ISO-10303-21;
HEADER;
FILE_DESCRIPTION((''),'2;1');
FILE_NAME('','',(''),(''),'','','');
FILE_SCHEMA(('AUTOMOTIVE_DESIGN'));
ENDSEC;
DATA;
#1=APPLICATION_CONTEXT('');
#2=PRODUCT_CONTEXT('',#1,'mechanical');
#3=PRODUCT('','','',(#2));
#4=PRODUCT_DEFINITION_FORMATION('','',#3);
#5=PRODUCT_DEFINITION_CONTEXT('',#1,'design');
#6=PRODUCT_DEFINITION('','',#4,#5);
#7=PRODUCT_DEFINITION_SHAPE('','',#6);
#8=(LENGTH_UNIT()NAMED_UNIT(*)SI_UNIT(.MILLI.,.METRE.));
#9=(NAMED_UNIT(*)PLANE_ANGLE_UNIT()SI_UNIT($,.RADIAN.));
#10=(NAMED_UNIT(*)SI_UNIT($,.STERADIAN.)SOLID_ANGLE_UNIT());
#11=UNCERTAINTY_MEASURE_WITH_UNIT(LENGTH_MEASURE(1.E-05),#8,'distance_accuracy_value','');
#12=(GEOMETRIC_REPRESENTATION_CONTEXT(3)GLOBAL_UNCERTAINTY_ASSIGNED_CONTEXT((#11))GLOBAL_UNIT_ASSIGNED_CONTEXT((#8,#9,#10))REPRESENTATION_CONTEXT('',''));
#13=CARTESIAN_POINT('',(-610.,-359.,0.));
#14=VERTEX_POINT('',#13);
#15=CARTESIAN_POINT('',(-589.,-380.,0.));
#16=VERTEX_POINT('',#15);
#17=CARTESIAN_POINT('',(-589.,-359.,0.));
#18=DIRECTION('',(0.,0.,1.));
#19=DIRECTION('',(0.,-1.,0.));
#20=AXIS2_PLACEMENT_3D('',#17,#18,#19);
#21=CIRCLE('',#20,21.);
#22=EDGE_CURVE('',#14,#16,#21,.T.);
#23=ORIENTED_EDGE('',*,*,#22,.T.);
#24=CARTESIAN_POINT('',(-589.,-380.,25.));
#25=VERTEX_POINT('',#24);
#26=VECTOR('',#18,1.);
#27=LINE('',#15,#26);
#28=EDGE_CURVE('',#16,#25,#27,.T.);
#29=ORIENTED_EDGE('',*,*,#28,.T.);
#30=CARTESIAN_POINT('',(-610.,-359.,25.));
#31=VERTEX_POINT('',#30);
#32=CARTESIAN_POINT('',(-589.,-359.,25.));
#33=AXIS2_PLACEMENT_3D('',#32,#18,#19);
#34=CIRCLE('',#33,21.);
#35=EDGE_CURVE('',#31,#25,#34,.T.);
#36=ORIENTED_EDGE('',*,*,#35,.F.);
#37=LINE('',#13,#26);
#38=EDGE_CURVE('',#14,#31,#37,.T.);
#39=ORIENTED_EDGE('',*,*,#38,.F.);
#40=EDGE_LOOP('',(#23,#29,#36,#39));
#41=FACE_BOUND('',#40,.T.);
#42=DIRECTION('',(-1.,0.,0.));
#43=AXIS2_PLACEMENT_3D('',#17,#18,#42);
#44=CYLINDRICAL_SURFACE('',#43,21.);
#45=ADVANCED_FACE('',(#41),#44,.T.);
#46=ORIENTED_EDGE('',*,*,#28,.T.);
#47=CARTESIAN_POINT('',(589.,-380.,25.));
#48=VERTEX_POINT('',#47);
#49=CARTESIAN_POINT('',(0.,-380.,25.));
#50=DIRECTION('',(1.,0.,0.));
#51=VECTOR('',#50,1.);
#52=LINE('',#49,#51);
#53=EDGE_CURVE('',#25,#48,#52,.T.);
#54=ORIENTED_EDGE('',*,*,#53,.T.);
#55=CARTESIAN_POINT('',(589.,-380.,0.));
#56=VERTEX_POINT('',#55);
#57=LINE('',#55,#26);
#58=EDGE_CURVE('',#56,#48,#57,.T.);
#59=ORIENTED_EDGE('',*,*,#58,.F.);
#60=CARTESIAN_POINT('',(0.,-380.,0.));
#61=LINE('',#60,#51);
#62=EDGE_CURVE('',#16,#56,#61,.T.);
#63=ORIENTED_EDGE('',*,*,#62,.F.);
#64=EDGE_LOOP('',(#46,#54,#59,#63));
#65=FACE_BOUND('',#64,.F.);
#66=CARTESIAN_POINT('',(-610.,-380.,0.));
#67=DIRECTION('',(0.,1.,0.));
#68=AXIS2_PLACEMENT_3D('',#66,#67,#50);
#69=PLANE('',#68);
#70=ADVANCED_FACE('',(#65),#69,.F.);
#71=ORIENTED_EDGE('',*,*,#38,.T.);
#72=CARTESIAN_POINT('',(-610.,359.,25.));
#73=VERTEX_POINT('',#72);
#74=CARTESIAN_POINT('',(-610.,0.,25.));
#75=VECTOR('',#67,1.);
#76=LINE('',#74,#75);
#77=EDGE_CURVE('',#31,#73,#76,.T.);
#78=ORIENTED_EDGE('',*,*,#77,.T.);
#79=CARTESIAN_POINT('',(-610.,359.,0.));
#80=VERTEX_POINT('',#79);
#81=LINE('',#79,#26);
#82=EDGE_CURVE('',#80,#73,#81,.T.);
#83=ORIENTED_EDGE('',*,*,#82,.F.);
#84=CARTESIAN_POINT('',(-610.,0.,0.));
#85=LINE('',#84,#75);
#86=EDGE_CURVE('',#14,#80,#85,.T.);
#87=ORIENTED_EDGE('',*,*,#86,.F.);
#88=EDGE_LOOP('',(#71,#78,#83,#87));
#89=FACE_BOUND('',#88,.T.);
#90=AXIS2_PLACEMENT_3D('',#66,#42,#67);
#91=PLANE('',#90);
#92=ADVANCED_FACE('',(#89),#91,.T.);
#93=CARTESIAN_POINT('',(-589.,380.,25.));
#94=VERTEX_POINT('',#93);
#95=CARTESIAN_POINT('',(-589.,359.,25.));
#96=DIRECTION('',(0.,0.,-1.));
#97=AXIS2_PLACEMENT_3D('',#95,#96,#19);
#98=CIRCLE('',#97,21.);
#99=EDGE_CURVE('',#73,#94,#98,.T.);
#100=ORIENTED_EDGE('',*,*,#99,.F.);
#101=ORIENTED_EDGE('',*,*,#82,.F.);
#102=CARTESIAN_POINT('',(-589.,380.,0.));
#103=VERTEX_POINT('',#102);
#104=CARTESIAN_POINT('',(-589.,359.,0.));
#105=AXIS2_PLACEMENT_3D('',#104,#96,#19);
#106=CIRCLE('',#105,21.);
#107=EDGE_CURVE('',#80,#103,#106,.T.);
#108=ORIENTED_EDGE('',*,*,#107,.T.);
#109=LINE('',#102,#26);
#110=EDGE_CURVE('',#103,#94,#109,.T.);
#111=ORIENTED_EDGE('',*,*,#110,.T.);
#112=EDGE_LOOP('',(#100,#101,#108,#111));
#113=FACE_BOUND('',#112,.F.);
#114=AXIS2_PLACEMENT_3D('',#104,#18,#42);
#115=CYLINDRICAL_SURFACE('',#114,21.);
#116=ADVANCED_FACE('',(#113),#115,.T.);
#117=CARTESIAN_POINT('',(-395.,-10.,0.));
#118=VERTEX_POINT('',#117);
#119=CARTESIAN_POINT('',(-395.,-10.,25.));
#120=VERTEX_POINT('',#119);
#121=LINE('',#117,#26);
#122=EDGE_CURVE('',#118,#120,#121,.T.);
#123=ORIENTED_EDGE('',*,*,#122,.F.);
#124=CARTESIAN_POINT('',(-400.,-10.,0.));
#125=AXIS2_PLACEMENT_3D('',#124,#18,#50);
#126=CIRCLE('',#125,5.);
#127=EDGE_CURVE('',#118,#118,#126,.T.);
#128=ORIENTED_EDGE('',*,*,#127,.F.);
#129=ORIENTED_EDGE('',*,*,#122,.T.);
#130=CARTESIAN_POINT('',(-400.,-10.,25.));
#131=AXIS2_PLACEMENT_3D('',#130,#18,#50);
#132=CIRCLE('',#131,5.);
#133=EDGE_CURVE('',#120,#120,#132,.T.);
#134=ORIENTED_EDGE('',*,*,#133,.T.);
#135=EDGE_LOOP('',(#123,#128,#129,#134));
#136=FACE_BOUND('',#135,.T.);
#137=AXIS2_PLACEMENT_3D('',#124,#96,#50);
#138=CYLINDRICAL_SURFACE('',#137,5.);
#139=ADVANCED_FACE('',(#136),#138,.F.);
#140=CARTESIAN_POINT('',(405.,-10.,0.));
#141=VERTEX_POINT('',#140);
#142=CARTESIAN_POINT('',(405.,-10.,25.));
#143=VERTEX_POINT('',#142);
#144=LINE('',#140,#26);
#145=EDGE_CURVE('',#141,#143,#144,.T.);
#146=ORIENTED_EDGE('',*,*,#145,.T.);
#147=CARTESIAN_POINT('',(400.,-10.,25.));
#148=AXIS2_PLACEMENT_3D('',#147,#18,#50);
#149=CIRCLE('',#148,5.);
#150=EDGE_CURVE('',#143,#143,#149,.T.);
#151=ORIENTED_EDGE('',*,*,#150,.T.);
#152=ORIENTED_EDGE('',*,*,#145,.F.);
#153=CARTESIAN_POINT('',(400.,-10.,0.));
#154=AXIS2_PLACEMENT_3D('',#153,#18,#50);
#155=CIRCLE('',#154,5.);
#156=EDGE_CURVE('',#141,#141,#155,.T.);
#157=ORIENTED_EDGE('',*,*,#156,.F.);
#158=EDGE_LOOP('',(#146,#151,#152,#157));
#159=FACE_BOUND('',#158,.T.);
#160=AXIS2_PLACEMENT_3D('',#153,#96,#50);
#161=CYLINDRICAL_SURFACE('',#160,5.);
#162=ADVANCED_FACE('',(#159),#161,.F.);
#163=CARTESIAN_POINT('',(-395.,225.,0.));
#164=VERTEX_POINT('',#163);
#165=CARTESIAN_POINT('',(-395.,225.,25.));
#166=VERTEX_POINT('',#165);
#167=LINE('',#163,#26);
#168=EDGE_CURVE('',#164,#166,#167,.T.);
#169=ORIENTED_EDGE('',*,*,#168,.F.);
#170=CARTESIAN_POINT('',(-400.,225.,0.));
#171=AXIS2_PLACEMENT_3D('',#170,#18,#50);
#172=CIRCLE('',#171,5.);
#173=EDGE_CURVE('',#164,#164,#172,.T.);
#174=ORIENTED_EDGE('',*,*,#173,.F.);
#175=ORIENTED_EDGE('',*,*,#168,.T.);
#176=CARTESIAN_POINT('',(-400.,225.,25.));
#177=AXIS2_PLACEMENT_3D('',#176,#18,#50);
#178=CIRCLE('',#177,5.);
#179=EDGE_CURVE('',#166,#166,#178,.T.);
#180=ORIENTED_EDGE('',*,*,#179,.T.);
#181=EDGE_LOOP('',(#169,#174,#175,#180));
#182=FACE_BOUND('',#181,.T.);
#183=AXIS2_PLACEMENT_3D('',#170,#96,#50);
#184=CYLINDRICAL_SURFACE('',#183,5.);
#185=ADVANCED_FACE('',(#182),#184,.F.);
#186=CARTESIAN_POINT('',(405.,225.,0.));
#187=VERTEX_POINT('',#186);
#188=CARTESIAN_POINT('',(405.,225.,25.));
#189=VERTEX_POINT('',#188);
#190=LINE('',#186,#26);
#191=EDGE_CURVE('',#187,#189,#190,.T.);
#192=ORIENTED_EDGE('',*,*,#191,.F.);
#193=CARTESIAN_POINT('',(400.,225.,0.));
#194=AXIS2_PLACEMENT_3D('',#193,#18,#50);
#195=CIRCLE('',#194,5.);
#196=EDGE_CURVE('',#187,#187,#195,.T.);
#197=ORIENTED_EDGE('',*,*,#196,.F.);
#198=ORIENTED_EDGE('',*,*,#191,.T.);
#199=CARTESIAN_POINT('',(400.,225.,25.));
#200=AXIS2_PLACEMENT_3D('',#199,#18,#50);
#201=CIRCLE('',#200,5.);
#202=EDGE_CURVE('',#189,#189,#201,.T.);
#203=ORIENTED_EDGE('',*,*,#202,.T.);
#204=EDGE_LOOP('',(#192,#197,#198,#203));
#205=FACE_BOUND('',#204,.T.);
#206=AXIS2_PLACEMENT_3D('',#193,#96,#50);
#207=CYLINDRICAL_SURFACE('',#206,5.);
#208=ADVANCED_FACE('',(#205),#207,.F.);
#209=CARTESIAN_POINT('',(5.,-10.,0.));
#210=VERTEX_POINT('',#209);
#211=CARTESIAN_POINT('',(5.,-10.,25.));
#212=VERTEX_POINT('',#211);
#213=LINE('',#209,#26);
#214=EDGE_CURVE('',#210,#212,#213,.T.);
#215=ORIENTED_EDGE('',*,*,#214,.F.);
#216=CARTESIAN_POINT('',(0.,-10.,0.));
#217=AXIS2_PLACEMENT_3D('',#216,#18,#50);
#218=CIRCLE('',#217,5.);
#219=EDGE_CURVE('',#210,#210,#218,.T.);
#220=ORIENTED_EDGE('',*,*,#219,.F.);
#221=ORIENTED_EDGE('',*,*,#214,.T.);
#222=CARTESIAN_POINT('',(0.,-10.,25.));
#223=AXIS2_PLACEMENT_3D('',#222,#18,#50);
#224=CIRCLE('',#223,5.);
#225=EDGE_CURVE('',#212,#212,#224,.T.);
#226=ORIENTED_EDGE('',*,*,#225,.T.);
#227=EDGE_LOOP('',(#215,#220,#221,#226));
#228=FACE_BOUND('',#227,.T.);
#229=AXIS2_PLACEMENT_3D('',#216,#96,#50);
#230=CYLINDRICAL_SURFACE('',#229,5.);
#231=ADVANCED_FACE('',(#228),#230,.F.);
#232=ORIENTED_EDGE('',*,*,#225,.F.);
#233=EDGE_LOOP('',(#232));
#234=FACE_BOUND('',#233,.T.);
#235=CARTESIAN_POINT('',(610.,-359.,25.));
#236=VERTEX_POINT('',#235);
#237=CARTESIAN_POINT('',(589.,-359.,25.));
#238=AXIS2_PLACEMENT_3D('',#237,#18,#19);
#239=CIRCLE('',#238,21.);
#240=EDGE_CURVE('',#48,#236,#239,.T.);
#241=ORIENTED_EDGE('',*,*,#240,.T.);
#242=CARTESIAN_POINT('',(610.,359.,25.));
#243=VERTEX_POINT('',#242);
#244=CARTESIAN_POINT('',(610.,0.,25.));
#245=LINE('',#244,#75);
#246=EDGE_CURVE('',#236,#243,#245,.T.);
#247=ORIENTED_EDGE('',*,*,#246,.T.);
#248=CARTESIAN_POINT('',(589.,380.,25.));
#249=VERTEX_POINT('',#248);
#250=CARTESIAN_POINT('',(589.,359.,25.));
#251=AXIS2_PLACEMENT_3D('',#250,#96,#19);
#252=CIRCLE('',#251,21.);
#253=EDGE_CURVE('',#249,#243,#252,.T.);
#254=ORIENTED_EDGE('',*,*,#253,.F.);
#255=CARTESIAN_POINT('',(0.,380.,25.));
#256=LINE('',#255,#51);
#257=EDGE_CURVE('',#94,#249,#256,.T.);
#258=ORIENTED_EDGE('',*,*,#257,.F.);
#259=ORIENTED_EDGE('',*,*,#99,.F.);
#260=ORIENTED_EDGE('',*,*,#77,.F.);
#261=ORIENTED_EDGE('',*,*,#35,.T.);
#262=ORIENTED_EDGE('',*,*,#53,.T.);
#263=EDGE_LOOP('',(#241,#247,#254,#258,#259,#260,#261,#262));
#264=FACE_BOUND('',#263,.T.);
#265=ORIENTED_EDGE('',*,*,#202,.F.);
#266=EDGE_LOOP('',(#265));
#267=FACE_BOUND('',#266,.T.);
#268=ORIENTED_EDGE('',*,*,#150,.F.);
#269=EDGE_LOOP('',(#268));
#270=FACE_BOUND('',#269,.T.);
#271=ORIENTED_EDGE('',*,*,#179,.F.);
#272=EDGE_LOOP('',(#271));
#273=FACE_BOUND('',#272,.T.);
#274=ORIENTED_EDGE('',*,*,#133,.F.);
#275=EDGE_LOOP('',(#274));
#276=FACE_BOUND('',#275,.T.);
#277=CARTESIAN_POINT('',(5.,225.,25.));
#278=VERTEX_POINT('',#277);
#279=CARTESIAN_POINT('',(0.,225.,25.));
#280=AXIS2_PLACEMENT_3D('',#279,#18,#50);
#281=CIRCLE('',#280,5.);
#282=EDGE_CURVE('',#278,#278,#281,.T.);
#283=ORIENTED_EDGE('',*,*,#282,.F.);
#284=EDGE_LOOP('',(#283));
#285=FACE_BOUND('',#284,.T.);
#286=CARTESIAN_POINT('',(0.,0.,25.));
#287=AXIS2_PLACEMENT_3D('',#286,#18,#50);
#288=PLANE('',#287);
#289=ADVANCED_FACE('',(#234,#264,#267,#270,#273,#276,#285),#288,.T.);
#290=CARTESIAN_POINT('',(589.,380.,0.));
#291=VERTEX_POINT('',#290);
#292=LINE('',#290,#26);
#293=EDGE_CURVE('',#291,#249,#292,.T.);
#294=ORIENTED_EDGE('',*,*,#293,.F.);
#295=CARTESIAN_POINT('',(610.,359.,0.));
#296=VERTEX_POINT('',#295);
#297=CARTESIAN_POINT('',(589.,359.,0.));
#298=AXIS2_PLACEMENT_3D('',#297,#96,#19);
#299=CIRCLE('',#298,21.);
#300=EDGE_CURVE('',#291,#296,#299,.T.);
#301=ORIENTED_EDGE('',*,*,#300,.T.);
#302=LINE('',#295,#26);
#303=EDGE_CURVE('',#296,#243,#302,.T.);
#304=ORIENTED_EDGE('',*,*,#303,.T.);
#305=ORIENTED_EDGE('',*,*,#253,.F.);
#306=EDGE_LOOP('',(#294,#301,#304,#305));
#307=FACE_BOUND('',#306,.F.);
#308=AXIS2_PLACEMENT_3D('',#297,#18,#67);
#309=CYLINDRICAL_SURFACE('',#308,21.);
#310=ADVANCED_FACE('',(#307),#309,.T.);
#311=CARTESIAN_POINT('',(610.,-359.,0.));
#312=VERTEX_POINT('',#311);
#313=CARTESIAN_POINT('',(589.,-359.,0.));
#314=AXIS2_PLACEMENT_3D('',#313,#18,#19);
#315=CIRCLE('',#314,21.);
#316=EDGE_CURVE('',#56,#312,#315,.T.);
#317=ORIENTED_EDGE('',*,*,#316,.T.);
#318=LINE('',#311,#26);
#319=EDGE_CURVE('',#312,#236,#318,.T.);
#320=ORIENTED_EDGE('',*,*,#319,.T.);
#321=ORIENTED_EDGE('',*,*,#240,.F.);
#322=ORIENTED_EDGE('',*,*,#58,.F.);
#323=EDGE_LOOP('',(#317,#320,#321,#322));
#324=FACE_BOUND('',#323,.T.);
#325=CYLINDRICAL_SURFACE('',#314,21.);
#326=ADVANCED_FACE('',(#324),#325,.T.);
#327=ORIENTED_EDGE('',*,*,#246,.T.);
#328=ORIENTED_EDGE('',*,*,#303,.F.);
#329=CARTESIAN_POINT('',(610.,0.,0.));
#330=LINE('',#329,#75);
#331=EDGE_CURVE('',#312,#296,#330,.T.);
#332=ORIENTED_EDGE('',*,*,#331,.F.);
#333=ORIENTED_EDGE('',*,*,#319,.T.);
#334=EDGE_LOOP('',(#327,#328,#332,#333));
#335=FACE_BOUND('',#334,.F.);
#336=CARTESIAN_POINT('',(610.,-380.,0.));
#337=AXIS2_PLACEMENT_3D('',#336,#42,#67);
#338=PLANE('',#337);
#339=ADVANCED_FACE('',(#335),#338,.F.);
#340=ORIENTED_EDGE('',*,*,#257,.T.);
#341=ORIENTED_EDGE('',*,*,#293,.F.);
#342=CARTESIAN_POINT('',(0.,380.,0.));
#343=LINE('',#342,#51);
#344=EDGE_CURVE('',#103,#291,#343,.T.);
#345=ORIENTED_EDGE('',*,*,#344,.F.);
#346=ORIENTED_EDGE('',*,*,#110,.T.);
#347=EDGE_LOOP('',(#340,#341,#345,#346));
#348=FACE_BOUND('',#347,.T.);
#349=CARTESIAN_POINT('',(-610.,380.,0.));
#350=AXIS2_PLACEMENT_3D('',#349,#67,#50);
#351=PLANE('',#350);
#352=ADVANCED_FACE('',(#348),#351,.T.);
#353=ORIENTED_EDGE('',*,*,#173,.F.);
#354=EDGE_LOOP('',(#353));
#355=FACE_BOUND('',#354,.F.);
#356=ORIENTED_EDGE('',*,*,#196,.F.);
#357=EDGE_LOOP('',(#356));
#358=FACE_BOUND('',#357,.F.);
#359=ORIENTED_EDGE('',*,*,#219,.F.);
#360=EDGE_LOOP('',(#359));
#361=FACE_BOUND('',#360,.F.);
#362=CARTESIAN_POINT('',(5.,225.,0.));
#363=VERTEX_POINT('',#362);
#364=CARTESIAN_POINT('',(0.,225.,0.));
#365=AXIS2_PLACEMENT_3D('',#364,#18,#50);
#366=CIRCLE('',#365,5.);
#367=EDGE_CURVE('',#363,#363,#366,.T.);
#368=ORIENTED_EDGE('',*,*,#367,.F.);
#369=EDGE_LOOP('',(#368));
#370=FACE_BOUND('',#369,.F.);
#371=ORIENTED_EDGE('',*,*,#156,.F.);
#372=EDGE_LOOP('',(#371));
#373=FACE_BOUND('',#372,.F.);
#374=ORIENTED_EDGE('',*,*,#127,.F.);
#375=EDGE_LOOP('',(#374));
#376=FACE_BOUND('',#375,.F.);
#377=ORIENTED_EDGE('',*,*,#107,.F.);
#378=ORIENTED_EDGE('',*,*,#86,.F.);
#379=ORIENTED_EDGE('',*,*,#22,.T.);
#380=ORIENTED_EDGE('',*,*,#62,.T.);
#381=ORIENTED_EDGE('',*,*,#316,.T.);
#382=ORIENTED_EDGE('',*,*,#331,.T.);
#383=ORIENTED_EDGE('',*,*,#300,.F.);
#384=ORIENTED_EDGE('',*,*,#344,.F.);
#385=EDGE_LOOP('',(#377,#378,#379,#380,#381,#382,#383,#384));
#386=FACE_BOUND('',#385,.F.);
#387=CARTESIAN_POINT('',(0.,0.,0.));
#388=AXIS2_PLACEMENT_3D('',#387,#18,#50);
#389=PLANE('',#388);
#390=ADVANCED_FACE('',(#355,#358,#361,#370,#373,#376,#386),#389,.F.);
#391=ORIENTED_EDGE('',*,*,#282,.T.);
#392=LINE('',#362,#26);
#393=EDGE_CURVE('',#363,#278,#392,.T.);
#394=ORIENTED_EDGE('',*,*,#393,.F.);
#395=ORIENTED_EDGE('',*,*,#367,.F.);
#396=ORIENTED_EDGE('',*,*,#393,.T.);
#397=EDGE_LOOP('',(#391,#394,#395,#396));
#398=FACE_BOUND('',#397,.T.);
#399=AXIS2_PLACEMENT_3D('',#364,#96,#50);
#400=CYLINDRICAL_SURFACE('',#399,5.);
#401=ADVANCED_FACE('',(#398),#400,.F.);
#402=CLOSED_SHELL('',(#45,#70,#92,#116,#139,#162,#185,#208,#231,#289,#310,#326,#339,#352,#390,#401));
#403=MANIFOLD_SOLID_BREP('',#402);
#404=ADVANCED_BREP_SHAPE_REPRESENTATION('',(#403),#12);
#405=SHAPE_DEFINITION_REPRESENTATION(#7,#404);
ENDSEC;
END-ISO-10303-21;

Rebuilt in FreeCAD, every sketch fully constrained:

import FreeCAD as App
import Part
import Sketcher

V = App.Vector


def edges_at(feature, points):
    """Names of the edges that pass closest to the given points."""
    edges = feature.Shape.Edges
    near = lambda p: min(range(len(edges)), key=lambda i: edges[i].distToShape(Part.Vertex(*p))[0])
    return sorted({f"Edge{near(p) + 1}" for p in points})

doc = App.newDocument("Part")
body = doc.addObject("PartDesign::Body", "Body")

sketch1 = body.newObject("Sketcher::SketchObject", "Sketch")
sketch1.AttachmentSupport = (doc.getObject("XY_Plane"), [""])
sketch1.MapMode = "FlatFace"
sketch1.addGeometry([
    Part.LineSegment(V(-610, 380, 0), V(-610, -380, 0)),
    Part.LineSegment(V(-610, -380, 0), V(610, -380, 0)),
    Part.LineSegment(V(610, -380, 0), V(610, 380, 0)),
    Part.LineSegment(V(610, 380, 0), V(-610, 380, 0)),
    Part.Circle(V(-400, -10, 0), V(0, 0, 1), 5),
    Part.Circle(V(0, -10, 0), V(0, 0, 1), 5),
    Part.Circle(V(400, -10, 0), V(0, 0, 1), 5),
    Part.Circle(V(-400, 225, 0), V(0, 0, 1), 5),
    Part.Circle(V(0, 225, 0), V(0, 0, 1), 5),
    Part.Circle(V(400, 225, 0), V(0, 0, 1), 5),
], False)
sketch1.addConstraint([
    Sketcher.Constraint("Coincident", 0, 2, 1, 1),
    Sketcher.Constraint("Coincident", 1, 2, 2, 1),
    Sketcher.Constraint("Coincident", 2, 2, 3, 1),
    Sketcher.Constraint("Coincident", 3, 2, 0, 1),
    Sketcher.Constraint("Vertical", 0),
    Sketcher.Constraint("Horizontal", 1),
    Sketcher.Constraint("Vertical", 2),
    Sketcher.Constraint("Horizontal", 3),
    Sketcher.Constraint("Equal", 4, 5),
    Sketcher.Constraint("Equal", 5, 6),
    Sketcher.Constraint("Equal", 6, 7),
    Sketcher.Constraint("Equal", 7, 8),
    Sketcher.Constraint("Equal", 8, 9),
    Sketcher.Constraint("Symmetric", 0, 2, 2, 2, -1, 1),
    Sketcher.Constraint("Symmetric", 4, 3, 6, 3, -2),
    Sketcher.Constraint("Symmetric", 7, 3, 9, 3, -2),
    Sketcher.Constraint("PointOnObject", 5, 3, -2),
    Sketcher.Constraint("PointOnObject", 8, 3, -2),
    Sketcher.Constraint("Horizontal", 4, 3, 5, 3),
    Sketcher.Constraint("Horizontal", 7, 3, 8, 3),
    Sketcher.Constraint("Vertical", 4, 3, 7, 3),
    Sketcher.Constraint("Diameter", 4, 10.0),
    Sketcher.Constraint("DistanceX", 1, 1, 1, 2, 1220.0),
    Sketcher.Constraint("DistanceY", 0, 2, 0, 1, 760.0),
    Sketcher.Constraint("DistanceX", 4, 3, -1, 1, 400.0),
    Sketcher.Constraint("DistanceY", 4, 3, -1, 1, 10.0),
    Sketcher.Constraint("DistanceY", -1, 1, 7, 3, 225.0),
])
pad1 = body.newObject("PartDesign::Pad", "Pad")
pad1.Profile = sketch1
pad1.Length = 25
doc.recompute()

fillet = body.newObject("PartDesign::Fillet", "Fillet")
fillet.Base = (pad1, edges_at(pad1, [
    (-610, -380, 12.5),
    (610, -380, 12.5),
    (610, 380, 12.5),
    (-610, 380, 12.5),
]))
fillet.Radius = 21

doc.recompute()
